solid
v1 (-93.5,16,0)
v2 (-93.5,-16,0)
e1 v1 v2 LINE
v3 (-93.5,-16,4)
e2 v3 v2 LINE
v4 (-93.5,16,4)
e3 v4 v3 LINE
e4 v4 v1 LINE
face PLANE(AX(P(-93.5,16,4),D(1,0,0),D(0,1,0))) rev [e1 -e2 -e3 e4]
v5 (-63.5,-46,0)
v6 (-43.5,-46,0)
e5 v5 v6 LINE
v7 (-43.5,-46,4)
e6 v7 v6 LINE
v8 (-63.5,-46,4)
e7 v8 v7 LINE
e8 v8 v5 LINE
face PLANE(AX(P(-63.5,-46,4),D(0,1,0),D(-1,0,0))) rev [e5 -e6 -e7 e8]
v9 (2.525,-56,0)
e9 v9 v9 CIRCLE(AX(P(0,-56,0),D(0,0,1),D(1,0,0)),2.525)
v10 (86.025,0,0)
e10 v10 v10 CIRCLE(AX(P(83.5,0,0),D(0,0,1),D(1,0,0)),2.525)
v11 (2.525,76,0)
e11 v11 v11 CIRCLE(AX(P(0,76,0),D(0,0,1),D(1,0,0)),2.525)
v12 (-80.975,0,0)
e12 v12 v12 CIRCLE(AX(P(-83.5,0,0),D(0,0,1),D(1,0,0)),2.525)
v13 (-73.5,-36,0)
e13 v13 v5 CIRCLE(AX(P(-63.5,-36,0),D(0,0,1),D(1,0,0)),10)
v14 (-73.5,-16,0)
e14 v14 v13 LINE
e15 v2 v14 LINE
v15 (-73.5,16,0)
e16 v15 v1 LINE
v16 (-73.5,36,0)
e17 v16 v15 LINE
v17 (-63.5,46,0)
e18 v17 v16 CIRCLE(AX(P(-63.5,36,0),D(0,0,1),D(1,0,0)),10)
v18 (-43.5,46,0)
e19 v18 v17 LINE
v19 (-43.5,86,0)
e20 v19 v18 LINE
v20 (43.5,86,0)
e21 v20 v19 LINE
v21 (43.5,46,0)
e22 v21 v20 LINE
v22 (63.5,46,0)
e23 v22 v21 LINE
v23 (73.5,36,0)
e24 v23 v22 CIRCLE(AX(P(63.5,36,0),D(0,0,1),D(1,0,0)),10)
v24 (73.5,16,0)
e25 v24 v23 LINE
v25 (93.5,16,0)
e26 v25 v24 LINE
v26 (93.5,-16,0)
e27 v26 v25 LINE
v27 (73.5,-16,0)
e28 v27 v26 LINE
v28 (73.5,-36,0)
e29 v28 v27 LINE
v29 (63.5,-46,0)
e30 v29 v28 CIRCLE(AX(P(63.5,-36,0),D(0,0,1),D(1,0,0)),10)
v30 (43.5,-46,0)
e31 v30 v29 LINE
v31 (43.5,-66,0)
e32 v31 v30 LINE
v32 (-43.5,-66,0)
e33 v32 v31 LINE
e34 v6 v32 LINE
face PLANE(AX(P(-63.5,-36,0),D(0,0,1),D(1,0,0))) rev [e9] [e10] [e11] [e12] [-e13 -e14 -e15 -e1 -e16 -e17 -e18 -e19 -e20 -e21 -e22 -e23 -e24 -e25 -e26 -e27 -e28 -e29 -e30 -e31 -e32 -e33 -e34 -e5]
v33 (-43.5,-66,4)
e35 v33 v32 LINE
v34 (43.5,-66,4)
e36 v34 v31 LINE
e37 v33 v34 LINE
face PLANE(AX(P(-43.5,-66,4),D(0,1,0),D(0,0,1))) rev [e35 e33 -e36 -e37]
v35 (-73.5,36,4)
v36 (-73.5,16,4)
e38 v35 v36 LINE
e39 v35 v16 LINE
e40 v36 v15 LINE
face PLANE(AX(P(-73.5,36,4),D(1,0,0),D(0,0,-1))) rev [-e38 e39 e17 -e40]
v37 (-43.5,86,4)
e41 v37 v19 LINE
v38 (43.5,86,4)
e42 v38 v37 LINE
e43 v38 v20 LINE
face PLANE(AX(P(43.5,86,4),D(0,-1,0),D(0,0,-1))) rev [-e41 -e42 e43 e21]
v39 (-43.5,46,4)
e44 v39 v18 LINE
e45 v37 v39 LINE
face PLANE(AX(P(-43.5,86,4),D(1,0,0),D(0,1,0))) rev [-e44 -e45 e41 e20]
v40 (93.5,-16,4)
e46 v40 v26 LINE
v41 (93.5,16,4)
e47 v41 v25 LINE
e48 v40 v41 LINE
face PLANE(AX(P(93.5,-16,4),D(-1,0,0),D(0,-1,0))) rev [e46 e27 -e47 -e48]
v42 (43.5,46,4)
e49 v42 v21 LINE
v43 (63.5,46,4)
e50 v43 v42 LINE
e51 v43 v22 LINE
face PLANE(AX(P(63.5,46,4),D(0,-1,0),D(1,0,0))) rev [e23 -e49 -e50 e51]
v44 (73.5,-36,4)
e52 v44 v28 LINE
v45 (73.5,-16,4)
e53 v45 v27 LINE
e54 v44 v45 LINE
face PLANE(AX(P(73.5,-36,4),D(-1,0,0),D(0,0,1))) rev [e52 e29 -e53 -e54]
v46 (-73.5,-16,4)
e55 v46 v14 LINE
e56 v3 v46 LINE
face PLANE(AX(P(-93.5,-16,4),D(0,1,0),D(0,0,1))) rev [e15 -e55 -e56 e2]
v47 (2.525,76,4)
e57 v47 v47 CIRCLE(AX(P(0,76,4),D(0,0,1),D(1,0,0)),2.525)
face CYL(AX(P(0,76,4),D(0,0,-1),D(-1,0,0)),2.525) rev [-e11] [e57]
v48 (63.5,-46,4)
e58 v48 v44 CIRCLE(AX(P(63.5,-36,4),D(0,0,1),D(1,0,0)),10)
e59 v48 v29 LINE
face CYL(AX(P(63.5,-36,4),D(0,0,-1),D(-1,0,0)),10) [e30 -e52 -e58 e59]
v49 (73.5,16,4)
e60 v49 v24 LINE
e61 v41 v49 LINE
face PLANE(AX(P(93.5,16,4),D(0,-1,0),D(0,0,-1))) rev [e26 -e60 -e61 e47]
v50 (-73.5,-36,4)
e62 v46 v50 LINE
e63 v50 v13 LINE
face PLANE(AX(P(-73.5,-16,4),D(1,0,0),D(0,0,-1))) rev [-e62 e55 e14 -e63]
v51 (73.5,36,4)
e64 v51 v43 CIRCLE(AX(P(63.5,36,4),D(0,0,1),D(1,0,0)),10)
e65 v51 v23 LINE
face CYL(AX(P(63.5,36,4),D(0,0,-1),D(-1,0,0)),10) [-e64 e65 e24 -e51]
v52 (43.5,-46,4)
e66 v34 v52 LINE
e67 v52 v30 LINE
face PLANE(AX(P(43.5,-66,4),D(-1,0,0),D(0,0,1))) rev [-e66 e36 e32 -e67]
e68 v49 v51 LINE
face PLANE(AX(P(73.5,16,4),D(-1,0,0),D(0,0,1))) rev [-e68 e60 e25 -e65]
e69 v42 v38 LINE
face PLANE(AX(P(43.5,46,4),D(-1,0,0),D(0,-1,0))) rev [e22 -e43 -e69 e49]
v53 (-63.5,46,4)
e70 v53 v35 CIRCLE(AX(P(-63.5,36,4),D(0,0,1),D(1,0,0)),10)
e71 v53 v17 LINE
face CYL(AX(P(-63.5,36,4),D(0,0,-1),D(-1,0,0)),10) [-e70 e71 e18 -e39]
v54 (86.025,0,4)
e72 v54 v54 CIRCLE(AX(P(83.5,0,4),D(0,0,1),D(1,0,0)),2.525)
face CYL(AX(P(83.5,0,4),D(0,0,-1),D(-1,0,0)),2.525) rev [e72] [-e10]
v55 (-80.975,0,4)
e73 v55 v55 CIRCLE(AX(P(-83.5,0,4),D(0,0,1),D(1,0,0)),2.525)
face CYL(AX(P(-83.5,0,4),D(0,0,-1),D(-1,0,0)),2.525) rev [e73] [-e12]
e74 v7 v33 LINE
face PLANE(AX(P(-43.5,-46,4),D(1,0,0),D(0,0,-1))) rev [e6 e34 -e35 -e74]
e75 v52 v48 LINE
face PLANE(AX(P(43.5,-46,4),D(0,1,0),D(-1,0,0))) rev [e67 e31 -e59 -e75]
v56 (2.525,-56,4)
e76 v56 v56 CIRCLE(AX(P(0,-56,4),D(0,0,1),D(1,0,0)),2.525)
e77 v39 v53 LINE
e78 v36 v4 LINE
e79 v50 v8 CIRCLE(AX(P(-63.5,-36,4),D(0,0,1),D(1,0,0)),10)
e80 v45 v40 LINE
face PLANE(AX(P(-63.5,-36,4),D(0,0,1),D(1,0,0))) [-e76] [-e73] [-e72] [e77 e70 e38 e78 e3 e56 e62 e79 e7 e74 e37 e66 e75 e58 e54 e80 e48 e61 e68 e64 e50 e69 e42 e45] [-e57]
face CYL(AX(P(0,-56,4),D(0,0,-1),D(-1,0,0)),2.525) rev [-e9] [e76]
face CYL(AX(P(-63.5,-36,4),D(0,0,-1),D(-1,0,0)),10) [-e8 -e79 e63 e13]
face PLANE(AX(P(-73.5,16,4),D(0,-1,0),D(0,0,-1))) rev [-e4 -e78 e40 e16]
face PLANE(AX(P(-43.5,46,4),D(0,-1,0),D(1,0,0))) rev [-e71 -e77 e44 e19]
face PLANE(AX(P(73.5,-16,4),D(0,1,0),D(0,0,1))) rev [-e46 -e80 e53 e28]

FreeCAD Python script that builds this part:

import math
import FreeCAD as App
import Part
import Sketcher

doc = App.newDocument("Part")
body = doc.addObject("PartDesign::Body", "Body")

sketch1 = body.newObject("Sketcher::SketchObject", "Sketch")
sketch1.AttachmentSupport = (doc.getObject("XY_Plane"), [""])
sketch1.MapMode = "FlatFace"
sketch1.addGeometry(Part.LineSegment(App.Vector(-43.5, 86, 0), App.Vector(-43.5, 46, 0)), False)
sketch1.addGeometry(Part.LineSegment(App.Vector(-43.5, 46, 0), App.Vector(-63.5, 46, 0)), False)
sketch1.addGeometry(Part.ArcOfCircle(Part.Circle(App.Vector(-63.5, 36, 0), App.Vector(0, 0, 1), 10), math.radians(90), math.radians(180)), False)
sketch1.addGeometry(Part.LineSegment(App.Vector(-73.5, 36, 0), App.Vector(-73.5, 16, 0)), False)
sketch1.addGeometry(Part.LineSegment(App.Vector(-73.5, 16, 0), App.Vector(-93.5, 16, 0)), False)
sketch1.addGeometry(Part.LineSegment(App.Vector(-93.5, 16, 0), App.Vector(-93.5, -16, 0)), False)
sketch1.addGeometry(Part.LineSegment(App.Vector(-93.5, -16, 0), App.Vector(-73.5, -16, 0)), False)
sketch1.addGeometry(Part.LineSegment(App.Vector(-73.5, -16, 0), App.Vector(-73.5, -36, 0)), False)
sketch1.addGeometry(Part.ArcOfCircle(Part.Circle(App.Vector(-63.5, -36, 0), App.Vector(0, 0, 1), 10), math.radians(180), math.radians(270)), False)
sketch1.addGeometry(Part.LineSegment(App.Vector(-63.5, -46, 0), App.Vector(-43.5, -46, 0)), False)
sketch1.addGeometry(Part.LineSegment(App.Vector(-43.5, -46, 0), App.Vector(-43.5, -66, 0)), False)
sketch1.addGeometry(Part.LineSegment(App.Vector(-43.5, -66, 0), App.Vector(43.5, -66, 0)), False)
sketch1.addGeometry(Part.LineSegment(App.Vector(43.5, -66, 0), App.Vector(43.5, -46, 0)), False)
sketch1.addGeometry(Part.LineSegment(App.Vector(43.5, -46, 0), App.Vector(63.5, -46, 0)), False)
sketch1.addGeometry(Part.ArcOfCircle(Part.Circle(App.Vector(63.5, -36, 0), App.Vector(0, 0, 1), 10), math.radians(-90), math.radians(0)), False)
sketch1.addGeometry(Part.LineSegment(App.Vector(73.5, -36, 0), App.Vector(73.5, -16, 0)), False)
sketch1.addGeometry(Part.LineSegment(App.Vector(73.5, -16, 0), App.Vector(93.5, -16, 0)), False)
sketch1.addGeometry(Part.LineSegment(App.Vector(93.5, -16, 0), App.Vector(93.5, 16, 0)), False)
sketch1.addGeometry(Part.LineSegment(App.Vector(93.5, 16, 0), App.Vector(73.5, 16, 0)), False)
sketch1.addGeometry(Part.LineSegment(App.Vector(73.5, 16, 0), App.Vector(73.5, 36, 0)), False)
sketch1.addGeometry(Part.ArcOfCircle(Part.Circle(App.Vector(63.5, 36, 0), App.Vector(0, 0, 1), 10), math.radians(0), math.radians(90)), False)
sketch1.addGeometry(Part.LineSegment(App.Vector(63.5, 46, 0), App.Vector(43.5, 46, 0)), False)
sketch1.addGeometry(Part.LineSegment(App.Vector(43.5, 46, 0), App.Vector(43.5, 86, 0)), False)
sketch1.addGeometry(Part.LineSegment(App.Vector(43.5, 86, 0), App.Vector(-43.5, 86, 0)), False)
sketch1.addGeometry(Part.Circle(App.Vector(-83.5, 0, 0), App.Vector(0, 0, 1), 2.5), False)
sketch1.addGeometry(Part.Circle(App.Vector(0, -56, 0), App.Vector(0, 0, 1), 2.5), False)
sketch1.addGeometry(Part.Circle(App.Vector(83.5, 0, 0), App.Vector(0, 0, 1), 2.5), False)
sketch1.addGeometry(Part.Circle(App.Vector(0, 76, 0), App.Vector(0, 0, 1), 2.5), False)
sketch1.addConstraint(Sketcher.Constraint("Coincident", 0, 2, 1, 1))
sketch1.addConstraint(Sketcher.Constraint("Tangent", 1, 2, 2, 1))
sketch1.addConstraint(Sketcher.Constraint("Tangent", 2, 2, 3, 1))
sketch1.addConstraint(Sketcher.Constraint("Coincident", 3, 2, 4, 1))
sketch1.addConstraint(Sketcher.Constraint("Coincident", 4, 2, 5, 1))
sketch1.addConstraint(Sketcher.Constraint("Coincident", 5, 2, 6, 1))
sketch1.addConstraint(Sketcher.Constraint("Coincident", 6, 2, 7, 1))
sketch1.addConstraint(Sketcher.Constraint("Tangent", 7, 2, 8, 1))
sketch1.addConstraint(Sketcher.Constraint("Tangent", 8, 2, 9, 1))
sketch1.addConstraint(Sketcher.Constraint("Coincident", 9, 2, 10, 1))
sketch1.addConstraint(Sketcher.Constraint("Coincident", 10, 2, 11, 1))
sketch1.addConstraint(Sketcher.Constraint("Coincident", 11, 2, 12, 1))
sketch1.addConstraint(Sketcher.Constraint("Coincident", 12, 2, 13, 1))
sketch1.addConstraint(Sketcher.Constraint("Tangent", 13, 2, 14, 1))
sketch1.addConstraint(Sketcher.Constraint("Tangent", 14, 2, 15, 1))
sketch1.addConstraint(Sketcher.Constraint("Coincident", 15, 2, 16, 1))
sketch1.addConstraint(Sketcher.Constraint("Coincident", 16, 2, 17, 1))
sketch1.addConstraint(Sketcher.Constraint("Coincident", 17, 2, 18, 1))
sketch1.addConstraint(Sketcher.Constraint("Coincident", 18, 2, 19, 1))
sketch1.addConstraint(Sketcher.Constraint("Tangent", 19, 2, 20, 1))
sketch1.addConstraint(Sketcher.Constraint("Tangent", 20, 2, 21, 1))
sketch1.addConstraint(Sketcher.Constraint("Coincident", 21, 2, 22, 1))
sketch1.addConstraint(Sketcher.Constraint("Coincident", 22, 2, 23, 1))
sketch1.addConstraint(Sketcher.Constraint("Coincident", 23, 2, 0, 1))
sketch1.addConstraint(Sketcher.Constraint("Vertical", 0))
sketch1.addConstraint(Sketcher.Constraint("Horizontal", 1))
sketch1.addConstraint(Sketcher.Constraint("Vertical", 3))
sketch1.addConstraint(Sketcher.Constraint("Horizontal", 4))
sketch1.addConstraint(Sketcher.Constraint("Vertical", 5))
sketch1.addConstraint(Sketcher.Constraint("Horizontal", 6))
sketch1.addConstraint(Sketcher.Constraint("Vertical", 7))
sketch1.addConstraint(Sketcher.Constraint("Horizontal", 9))
sketch1.addConstraint(Sketcher.Constraint("Vertical", 10))
sketch1.addConstraint(Sketcher.Constraint("Horizontal", 11))
sketch1.addConstraint(Sketcher.Constraint("Vertical", 12))
sketch1.addConstraint(Sketcher.Constraint("Horizontal", 13))
sketch1.addConstraint(Sketcher.Constraint("Vertical", 15))
sketch1.addConstraint(Sketcher.Constraint("Horizontal", 16))
sketch1.addConstraint(Sketcher.Constraint("Vertical", 17))
sketch1.addConstraint(Sketcher.Constraint("Horizontal", 18))
sketch1.addConstraint(Sketcher.Constraint("Vertical", 19))
sketch1.addConstraint(Sketcher.Constraint("Horizontal", 21))
sketch1.addConstraint(Sketcher.Constraint("Vertical", 22))
sketch1.addConstraint(Sketcher.Constraint("Horizontal", 23))
sketch1.addConstraint(Sketcher.Constraint("Equal", 2, 8))
sketch1.addConstraint(Sketcher.Constraint("Equal", 8, 14))
sketch1.addConstraint(Sketcher.Constraint("Equal", 14, 20))
sketch1.addConstraint(Sketcher.Constraint("Equal", 24, 25))
sketch1.addConstraint(Sketcher.Constraint("Equal", 25, 26))
sketch1.addConstraint(Sketcher.Constraint("Equal", 26, 27))
sketch1.addConstraint(Sketcher.Constraint("Symmetric", 2, 3, 14, 3, -1, 1))
sketch1.addConstraint(Sketcher.Constraint("Symmetric", 8, 3, 20, 3, -1, 1))
sketch1.addConstraint(Sketcher.Constraint("Symmetric", 24, 3, 26, 3, -1, 1))
sketch1.addConstraint(Sketcher.Constraint("Symmetric", 4, 2, 16, 2, -1, 1))
sketch1.addConstraint(Sketcher.Constraint("Symmetric", 8, 3, 14, 3, -2))
sketch1.addConstraint(Sketcher.Constraint("PointOnObject", 24, 3, -1))
sketch1.addConstraint(Sketcher.Constraint("PointOnObject", 25, 3, -2))
sketch1.addConstraint(Sketcher.Constraint("PointOnObject", 27, 3, -2))
sketch1.addConstraint(Sketcher.Constraint("Horizontal", 6, 2, 15, 2))
sketch1.addConstraint(Sketcher.Constraint("Horizontal", 4, 2, 17, 2))
sketch1.addConstraint(Sketcher.Constraint("Vertical", 0, 2, 9, 2))
sketch1.addConstraint(Sketcher.Constraint("Vertical", 12, 2, 21, 2))
sketch1.addConstraint(Sketcher.Constraint("Equal", 1, 4))
sketch1.addConstraint(Sketcher.Constraint("Equal", 9, 13))
sketch1.addConstraint(Sketcher.Constraint("Equal", 21, 3))
sketch1.addConstraint(Sketcher.Constraint("Equal", 7, 10))
sketch1.addConstraint(Sketcher.Constraint("Radius", 2, 10.0))
sketch1.addConstraint(Sketcher.Constraint("Diameter", 24, 5.05))
sketch1.addConstraint(Sketcher.Constraint("DistanceX", 1, 2, 1, 1, 20.0))
sketch1.addConstraint(Sketcher.Constraint("DistanceX", 11, 1, 11, 2, 87.0))
sketch1.addConstraint(Sketcher.Constraint("DistanceY", 0, 2, 0, 1, 40.0))
sketch1.addConstraint(Sketcher.Constraint("DistanceY", 5, 2, 5, 1, 32.0))
sketch1.addConstraint(Sketcher.Constraint("DistanceY", 25, 3, -1, 1, 56.0))
sketch1.addConstraint(Sketcher.Constraint("DistanceY", -1, 1, 27, 3, 76.0))
sketch1.addConstraint(Sketcher.Constraint("DistanceX", 24, 3, 2, 3, 20.0))
pad1 = body.newObject("PartDesign::Pad", "Pad")
pad1.Profile = sketch1
pad1.Length = 4

doc.recompute()
